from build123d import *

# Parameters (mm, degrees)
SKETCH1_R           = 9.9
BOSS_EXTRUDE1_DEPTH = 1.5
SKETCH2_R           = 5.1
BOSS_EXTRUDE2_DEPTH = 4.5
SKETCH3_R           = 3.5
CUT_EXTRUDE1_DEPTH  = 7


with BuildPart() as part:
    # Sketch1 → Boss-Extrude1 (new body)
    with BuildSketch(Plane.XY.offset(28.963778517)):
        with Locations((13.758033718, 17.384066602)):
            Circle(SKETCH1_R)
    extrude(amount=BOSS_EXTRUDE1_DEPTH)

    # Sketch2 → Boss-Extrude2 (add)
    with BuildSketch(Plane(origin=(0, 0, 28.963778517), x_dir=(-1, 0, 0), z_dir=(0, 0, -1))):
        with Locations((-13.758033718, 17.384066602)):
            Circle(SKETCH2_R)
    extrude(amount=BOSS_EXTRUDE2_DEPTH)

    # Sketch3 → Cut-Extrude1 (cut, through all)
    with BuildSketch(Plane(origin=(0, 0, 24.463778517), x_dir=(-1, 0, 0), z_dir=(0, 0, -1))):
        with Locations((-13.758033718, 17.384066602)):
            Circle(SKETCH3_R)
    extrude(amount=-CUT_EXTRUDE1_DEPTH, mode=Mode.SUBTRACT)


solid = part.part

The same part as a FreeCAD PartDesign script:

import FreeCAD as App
import Part
import Sketcher

doc = App.newDocument("Part")
body = doc.addObject("PartDesign::Body", "Body")

# Sketch on XY plane
sketch1 = body.newObject("Sketcher::SketchObject", "Sketch")
sketch1.AttachmentSupport = (doc.getObject("XY_Plane"), [""])
sketch1.MapMode = "FlatFace"
sketch1.AttachmentOffset = App.Placement(App.Vector(0, 0, 28.963779), App.Rotation())
sketch1.addGeometry(Part.Circle(App.Vector(14, 17, 0), App.Vector(0, 0, 1), 10), False)
sketch1.addConstraint([
    Sketcher.Constraint("Diameter", 0, 19.8),
    Sketcher.Constraint("DistanceX", -1, 1, 0, 3, 13.758034),
    Sketcher.Constraint("DistanceY", -1, 1, 0, 3, 17.384067),
])
pad1 = body.newObject("PartDesign::Pad", "Pad")
pad1.Profile = sketch1
pad1.Length = 1.5

# Sketch on XY plane
sketch2 = body.newObject("Sketcher::SketchObject", "Sketch001")
sketch2.AttachmentSupport = (doc.getObject("XY_Plane"), [""])
sketch2.MapMode = "FlatFace"
sketch2.AttachmentOffset = App.Placement(App.Vector(0, 0, 28.963779), App.Rotation())
sketch2.addGeometry(Part.Circle(App.Vector(14, 17, 0), App.Vector(0, 0, 1), 5), False)
sketch2.addConstraint([
    Sketcher.Constraint("Diameter", 0, 10.2),
    Sketcher.Constraint("DistanceX", -1, 1, 0, 3, 13.758034),
    Sketcher.Constraint("DistanceY", -1, 1, 0, 3, 17.384067),
])
pad2 = body.newObject("PartDesign::Pad", "Pad001")
pad2.Profile = sketch2
pad2.Length = 4.5
pad2.Reversed = True

# Sketch on XY plane
sketch3 = body.newObject("Sketcher::SketchObject", "Sketch002")
sketch3.AttachmentSupport = (doc.getObject("XY_Plane"), [""])
sketch3.MapMode = "FlatFace"
sketch3.AttachmentOffset = App.Placement(App.Vector(0, 0, 24.463779), App.Rotation())
sketch3.addGeometry(Part.Circle(App.Vector(13.8, 17.4, 0), App.Vector(0, 0, 1), 3.5), False)
sketch3.addConstraint([
    Sketcher.Constraint("Diameter", 0, 7.0),
    Sketcher.Constraint("DistanceX", -1, 1, 0, 3, 13.758034),
    Sketcher.Constraint("DistanceY", -1, 1, 0, 3, 17.384067),
])
pocket1 = body.newObject("PartDesign::Pocket", "Pocket")
pocket1.Profile = sketch3
pocket1.Type = "ThroughAll"
pocket1.Reversed = True

doc.recompute()
